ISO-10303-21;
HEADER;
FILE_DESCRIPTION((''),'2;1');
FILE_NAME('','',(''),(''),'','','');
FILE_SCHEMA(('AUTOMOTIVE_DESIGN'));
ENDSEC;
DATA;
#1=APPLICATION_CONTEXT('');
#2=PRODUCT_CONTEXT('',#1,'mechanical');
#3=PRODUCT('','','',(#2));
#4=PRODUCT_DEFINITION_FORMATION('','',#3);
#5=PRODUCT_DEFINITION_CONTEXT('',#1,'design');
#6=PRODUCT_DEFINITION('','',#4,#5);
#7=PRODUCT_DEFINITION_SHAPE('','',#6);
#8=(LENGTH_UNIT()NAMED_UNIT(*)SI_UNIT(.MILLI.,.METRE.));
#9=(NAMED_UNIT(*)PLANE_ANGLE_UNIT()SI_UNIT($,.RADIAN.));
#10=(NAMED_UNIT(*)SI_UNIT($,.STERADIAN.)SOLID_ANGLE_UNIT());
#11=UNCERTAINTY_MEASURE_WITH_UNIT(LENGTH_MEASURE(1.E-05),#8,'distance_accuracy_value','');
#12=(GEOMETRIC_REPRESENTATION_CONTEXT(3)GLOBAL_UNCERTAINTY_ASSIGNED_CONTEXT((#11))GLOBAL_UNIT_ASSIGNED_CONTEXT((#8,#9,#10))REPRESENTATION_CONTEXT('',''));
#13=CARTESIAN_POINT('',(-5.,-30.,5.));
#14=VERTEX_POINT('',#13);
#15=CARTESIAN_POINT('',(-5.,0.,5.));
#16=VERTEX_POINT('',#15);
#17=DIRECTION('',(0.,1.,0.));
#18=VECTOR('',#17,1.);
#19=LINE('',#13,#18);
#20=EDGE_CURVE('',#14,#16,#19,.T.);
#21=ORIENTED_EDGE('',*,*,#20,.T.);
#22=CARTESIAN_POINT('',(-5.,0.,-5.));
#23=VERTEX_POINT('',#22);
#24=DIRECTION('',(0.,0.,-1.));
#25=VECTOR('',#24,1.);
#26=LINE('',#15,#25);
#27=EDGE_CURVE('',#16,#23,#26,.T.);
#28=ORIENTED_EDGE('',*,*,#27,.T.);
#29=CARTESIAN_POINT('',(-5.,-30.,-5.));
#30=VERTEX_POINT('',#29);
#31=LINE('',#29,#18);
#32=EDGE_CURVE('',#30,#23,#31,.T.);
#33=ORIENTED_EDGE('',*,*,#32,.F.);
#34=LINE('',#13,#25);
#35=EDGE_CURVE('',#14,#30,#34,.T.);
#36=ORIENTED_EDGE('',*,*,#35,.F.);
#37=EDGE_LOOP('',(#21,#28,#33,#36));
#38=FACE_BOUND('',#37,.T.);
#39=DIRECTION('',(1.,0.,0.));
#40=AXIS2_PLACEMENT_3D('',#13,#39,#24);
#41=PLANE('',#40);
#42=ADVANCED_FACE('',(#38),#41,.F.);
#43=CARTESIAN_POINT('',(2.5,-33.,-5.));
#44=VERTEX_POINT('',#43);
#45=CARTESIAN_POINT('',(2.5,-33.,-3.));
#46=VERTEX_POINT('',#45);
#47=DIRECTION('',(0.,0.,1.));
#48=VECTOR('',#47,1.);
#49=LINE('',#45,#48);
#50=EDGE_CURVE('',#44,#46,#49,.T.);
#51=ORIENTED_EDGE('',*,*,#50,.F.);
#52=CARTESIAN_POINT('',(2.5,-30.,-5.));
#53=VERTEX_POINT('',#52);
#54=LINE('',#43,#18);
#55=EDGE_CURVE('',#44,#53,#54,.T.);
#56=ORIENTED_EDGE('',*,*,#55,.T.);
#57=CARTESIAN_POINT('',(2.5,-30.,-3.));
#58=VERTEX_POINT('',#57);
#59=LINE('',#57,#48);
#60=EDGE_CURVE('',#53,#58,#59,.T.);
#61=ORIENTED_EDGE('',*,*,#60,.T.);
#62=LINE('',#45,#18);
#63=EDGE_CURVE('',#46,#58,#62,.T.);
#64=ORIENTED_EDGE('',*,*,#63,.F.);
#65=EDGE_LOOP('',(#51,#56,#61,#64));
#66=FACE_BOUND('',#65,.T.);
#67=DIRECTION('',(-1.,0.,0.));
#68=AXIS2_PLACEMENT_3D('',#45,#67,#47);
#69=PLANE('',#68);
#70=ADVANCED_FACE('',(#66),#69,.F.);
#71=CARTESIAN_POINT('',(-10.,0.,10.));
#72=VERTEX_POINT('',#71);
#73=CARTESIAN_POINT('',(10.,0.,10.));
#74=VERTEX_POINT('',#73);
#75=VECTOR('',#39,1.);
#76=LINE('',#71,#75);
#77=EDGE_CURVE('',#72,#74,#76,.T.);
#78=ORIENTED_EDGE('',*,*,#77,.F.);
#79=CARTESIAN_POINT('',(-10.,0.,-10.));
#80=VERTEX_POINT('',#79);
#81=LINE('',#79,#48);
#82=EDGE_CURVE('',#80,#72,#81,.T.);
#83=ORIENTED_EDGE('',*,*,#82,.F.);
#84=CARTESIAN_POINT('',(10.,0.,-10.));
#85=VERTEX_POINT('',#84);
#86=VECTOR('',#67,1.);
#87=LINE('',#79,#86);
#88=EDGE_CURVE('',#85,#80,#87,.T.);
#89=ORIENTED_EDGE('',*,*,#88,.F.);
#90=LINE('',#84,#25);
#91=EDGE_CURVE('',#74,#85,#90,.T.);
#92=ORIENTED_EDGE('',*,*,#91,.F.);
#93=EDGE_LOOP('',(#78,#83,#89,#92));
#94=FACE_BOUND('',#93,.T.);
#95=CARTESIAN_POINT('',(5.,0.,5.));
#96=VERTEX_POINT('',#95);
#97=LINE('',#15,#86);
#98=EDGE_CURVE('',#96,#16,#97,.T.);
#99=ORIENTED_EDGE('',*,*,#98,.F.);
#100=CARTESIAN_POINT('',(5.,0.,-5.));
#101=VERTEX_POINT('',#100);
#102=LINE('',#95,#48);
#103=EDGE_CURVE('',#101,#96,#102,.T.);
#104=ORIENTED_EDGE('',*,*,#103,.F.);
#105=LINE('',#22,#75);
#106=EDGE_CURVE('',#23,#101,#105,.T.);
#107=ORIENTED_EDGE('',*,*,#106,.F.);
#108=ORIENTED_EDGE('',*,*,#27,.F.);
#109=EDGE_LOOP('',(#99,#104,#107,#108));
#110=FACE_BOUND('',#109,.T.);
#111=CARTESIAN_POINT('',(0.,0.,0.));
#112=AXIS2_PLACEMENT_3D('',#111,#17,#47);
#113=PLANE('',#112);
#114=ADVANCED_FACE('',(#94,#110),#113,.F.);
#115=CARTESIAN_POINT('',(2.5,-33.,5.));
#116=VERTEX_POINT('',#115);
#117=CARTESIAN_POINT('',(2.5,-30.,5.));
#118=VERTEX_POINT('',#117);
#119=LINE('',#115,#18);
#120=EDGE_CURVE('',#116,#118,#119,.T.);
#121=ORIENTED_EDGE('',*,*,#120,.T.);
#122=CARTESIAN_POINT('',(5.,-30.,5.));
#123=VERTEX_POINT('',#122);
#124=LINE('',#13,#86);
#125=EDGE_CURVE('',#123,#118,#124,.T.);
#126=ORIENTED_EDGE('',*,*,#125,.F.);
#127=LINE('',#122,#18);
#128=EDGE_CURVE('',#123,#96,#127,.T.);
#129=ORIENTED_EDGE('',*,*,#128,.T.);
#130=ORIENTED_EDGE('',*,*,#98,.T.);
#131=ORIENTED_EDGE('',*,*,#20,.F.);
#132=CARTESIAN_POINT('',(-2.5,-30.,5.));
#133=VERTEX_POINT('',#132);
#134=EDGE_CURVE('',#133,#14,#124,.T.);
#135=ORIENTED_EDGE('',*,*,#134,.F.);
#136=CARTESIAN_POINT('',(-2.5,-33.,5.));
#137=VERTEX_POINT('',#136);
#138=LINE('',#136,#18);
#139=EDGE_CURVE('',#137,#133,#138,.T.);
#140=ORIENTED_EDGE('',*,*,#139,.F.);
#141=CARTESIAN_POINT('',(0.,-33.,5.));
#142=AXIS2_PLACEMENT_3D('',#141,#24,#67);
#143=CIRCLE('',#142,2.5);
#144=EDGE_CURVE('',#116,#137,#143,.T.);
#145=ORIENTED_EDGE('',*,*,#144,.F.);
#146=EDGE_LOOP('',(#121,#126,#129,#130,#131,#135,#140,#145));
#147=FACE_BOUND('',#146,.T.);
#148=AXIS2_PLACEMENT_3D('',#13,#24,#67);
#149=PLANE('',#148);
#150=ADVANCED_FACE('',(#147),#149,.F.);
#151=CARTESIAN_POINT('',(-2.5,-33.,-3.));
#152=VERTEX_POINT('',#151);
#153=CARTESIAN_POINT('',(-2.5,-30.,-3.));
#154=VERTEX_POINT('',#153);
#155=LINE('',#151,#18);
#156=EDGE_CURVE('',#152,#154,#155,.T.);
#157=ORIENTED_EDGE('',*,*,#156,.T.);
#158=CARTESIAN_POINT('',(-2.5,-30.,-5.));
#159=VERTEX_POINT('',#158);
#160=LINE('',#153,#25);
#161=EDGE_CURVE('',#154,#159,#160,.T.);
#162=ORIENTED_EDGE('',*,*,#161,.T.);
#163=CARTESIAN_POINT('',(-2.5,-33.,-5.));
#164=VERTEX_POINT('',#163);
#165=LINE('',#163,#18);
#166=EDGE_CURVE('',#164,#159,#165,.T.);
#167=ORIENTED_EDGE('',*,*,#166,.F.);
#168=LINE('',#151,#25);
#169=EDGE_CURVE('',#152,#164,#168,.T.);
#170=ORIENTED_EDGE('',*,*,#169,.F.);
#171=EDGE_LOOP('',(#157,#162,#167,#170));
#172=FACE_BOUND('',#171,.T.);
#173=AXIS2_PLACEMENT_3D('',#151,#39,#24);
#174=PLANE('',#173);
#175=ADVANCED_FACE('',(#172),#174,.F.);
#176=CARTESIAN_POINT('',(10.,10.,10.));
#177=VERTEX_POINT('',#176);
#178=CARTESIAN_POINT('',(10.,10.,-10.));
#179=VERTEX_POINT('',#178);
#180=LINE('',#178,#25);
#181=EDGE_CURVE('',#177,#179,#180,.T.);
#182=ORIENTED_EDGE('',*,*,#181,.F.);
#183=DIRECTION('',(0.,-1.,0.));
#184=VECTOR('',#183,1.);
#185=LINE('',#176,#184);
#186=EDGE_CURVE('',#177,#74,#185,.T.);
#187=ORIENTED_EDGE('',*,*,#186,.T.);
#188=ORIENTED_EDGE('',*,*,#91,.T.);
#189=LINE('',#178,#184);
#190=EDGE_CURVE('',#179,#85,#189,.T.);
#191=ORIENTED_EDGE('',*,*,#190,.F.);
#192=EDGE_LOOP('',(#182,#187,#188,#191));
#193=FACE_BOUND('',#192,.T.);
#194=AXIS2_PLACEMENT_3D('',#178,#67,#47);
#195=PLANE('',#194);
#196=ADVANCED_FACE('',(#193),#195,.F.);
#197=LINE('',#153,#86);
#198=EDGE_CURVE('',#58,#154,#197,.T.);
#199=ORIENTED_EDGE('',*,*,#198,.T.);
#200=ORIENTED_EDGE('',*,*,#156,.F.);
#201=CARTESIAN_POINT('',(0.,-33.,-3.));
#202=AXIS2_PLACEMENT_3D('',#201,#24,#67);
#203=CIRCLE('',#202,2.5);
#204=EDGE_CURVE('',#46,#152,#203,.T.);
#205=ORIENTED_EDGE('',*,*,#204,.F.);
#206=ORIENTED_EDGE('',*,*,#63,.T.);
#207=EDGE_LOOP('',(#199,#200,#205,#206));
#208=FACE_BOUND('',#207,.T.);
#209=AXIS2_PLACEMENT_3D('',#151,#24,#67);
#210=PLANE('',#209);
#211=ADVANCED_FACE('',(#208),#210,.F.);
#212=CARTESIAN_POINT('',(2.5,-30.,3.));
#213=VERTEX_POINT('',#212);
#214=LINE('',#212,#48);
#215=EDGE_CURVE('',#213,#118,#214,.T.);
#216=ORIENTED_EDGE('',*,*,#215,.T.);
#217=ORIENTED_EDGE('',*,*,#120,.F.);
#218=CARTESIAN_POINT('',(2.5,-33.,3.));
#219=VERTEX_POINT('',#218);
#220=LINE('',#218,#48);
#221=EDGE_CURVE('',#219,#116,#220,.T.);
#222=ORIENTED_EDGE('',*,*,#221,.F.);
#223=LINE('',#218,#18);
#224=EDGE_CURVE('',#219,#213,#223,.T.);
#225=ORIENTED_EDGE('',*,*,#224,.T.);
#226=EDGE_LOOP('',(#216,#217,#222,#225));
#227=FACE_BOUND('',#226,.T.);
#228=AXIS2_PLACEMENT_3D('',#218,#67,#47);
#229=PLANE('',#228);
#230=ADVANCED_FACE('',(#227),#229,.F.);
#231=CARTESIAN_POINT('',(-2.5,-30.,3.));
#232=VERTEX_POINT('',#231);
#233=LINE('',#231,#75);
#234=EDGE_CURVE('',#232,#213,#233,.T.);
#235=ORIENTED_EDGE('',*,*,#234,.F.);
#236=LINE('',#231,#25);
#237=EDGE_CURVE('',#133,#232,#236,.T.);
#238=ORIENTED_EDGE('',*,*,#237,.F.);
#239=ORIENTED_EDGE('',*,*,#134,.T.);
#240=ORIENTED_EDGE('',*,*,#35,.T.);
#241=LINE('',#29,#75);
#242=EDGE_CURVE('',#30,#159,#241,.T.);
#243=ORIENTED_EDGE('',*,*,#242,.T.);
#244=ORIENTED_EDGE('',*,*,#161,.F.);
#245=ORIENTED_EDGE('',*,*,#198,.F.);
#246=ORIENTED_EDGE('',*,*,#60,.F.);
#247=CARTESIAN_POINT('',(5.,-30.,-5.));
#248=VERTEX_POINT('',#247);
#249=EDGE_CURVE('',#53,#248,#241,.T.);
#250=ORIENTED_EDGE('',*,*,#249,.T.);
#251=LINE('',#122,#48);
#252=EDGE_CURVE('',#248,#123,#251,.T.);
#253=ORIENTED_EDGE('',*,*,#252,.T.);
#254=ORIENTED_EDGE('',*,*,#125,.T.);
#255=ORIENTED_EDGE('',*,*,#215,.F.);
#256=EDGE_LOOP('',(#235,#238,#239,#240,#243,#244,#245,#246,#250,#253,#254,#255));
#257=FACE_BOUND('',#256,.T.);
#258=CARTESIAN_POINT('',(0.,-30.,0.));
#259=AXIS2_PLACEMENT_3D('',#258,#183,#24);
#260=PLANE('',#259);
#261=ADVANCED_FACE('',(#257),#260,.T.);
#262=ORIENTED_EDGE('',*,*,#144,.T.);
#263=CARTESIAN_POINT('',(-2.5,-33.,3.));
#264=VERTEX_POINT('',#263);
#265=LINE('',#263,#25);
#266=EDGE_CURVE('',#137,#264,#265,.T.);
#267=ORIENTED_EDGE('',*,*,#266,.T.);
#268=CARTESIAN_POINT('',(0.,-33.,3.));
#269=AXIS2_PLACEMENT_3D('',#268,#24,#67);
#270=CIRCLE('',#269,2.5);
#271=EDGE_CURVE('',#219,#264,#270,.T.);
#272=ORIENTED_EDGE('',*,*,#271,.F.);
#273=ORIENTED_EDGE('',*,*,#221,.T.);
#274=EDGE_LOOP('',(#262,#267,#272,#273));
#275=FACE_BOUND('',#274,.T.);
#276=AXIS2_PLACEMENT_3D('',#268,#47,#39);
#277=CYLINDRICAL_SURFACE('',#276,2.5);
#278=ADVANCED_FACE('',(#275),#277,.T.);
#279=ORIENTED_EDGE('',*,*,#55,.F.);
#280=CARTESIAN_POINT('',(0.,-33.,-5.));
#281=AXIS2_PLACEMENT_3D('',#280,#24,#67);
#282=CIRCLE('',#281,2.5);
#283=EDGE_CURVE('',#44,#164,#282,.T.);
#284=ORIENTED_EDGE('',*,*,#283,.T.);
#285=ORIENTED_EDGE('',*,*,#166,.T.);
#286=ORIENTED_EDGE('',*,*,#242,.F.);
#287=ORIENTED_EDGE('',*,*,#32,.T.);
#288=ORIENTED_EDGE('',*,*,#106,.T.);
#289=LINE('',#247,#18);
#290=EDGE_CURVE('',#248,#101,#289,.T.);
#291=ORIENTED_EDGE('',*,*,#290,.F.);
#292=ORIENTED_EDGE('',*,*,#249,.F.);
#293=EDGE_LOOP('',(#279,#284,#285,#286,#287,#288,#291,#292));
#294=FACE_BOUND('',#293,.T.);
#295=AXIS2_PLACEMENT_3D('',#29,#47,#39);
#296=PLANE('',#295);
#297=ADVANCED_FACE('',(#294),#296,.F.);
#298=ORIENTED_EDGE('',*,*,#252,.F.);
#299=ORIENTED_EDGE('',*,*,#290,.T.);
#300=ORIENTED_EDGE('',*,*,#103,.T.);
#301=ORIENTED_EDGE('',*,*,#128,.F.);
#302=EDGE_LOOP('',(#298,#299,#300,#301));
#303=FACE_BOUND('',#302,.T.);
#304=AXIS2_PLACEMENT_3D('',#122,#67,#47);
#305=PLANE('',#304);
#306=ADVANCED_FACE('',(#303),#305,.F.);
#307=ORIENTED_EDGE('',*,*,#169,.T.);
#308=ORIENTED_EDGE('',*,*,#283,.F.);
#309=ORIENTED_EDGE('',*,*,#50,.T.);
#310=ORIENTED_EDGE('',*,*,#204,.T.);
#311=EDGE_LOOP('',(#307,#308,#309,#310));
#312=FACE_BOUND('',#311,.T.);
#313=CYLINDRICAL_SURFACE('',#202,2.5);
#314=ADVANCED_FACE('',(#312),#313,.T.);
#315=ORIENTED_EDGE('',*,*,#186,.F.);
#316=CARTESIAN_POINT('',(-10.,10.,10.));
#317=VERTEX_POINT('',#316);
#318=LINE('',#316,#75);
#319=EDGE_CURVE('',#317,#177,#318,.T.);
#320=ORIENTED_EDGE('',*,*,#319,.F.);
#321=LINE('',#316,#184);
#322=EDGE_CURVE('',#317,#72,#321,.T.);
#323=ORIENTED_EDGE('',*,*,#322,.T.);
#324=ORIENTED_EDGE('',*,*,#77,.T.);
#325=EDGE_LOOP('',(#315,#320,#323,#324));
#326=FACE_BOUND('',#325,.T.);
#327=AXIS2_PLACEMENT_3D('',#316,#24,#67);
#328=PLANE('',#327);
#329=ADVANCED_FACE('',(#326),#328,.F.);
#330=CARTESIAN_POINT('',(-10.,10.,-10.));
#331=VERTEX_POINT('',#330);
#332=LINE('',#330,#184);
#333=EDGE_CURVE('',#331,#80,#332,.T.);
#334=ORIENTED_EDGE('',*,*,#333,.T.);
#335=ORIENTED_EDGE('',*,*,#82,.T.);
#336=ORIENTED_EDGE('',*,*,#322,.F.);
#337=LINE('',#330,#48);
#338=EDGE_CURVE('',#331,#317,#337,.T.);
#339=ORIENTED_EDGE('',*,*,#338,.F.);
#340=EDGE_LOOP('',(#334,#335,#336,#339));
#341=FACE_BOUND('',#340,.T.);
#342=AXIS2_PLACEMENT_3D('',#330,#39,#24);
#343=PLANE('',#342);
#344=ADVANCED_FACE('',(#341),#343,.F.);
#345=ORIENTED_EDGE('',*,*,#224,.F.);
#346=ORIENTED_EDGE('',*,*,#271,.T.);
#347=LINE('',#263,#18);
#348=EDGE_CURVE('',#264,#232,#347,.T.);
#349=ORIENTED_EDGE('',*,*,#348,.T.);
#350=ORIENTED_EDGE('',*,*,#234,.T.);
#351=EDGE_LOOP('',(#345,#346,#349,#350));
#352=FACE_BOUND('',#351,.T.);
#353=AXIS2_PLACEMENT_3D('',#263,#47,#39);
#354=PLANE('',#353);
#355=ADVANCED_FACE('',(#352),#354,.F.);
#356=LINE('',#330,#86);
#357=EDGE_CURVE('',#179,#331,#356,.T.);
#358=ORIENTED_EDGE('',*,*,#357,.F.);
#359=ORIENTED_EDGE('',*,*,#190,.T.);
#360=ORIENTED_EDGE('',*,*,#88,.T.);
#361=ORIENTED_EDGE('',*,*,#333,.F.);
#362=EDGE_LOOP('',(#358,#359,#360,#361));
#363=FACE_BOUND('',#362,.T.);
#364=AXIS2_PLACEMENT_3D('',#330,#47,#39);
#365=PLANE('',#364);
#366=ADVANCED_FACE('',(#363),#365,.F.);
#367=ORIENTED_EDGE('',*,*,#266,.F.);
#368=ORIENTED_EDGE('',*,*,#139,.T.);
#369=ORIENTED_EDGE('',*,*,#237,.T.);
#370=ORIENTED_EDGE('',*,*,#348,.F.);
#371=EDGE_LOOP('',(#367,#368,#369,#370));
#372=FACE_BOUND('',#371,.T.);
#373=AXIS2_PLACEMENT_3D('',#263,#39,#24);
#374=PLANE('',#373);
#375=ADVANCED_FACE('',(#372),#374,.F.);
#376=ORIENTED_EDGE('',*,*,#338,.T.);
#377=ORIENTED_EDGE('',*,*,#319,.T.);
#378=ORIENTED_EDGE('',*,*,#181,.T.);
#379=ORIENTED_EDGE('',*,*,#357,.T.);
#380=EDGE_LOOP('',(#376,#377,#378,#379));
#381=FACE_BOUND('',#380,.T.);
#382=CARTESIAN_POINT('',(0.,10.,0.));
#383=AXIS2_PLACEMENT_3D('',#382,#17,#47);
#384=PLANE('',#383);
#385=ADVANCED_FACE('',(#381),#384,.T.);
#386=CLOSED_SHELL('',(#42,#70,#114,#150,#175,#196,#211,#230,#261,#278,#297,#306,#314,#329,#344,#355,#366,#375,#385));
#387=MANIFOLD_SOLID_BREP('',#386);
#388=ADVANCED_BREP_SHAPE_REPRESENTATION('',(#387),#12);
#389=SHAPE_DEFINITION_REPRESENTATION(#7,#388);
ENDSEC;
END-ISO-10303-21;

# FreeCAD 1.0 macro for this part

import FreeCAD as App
import Part
import Sketcher

V = App.Vector


def add_polygon(sketch, points):
    """Adds a closed chain of lines whose ends are joined by coincident constraints."""
    first, n = sketch.GeometryCount, len(points)
    for a, b in zip(points, points[1:] + points[:1]):
        sketch.addGeometry(Part.LineSegment(App.Vector(*a, 0), App.Vector(*b, 0)), False)
    for i in range(n):
        sketch.addConstraint(Sketcher.Constraint("Coincident", first + i, 2, first + (i + 1) % n, 1))

doc = App.newDocument("Part")
body = doc.addObject("PartDesign::Body", "Body")

# Sketch on XZ plane
sketch1 = body.newObject("Sketcher::SketchObject", "Sketch")
sketch1.AttachmentSupport = (doc.getObject("XZ_Plane"), [""])
sketch1.MapMode = "FlatFace"
add_polygon(sketch1, [(-10, -10), (-10, 10), (10, 10), (10, -10)])  # lines 0-3
sketch1.addConstraint([
    Sketcher.Constraint("Vertical", 0),
    Sketcher.Constraint("Horizontal", 1),
    Sketcher.Constraint("Vertical", 2),
    Sketcher.Constraint("Horizontal", 3),
    Sketcher.Constraint("Symmetric", 0, 2, 2, 2, -1, 1),
    Sketcher.Constraint("Equal", 3, 0),
    Sketcher.Constraint("DistanceX", 1, 1, 1, 2, 20.0),
])
pad1 = body.newObject("PartDesign::Pad", "Pad")
pad1.Profile = sketch1
pad1.Length = 10
pad1.Reversed = True

# Sketch on XZ plane
sketch2 = body.newObject("Sketcher::SketchObject", "Sketch001")
sketch2.AttachmentSupport = (doc.getObject("XZ_Plane"), [""])
sketch2.MapMode = "FlatFace"
add_polygon(sketch2, [(5, -5), (5, 5), (-5, 5), (-5, -5)])  # lines 0-3
sketch2.addConstraint([
    Sketcher.Constraint("Vertical", 0),
    Sketcher.Constraint("Horizontal", 1),
    Sketcher.Constraint("Vertical", 2),
    Sketcher.Constraint("Horizontal", 3),
    Sketcher.Constraint("Symmetric", 0, 2, 2, 2, -1, 1),
    Sketcher.Constraint("Equal", 3, 0),
    Sketcher.Constraint("DistanceX", 1, 2, 1, 1, 10.0),
])
pad2 = body.newObject("PartDesign::Pad", "Pad001")
pad2.Profile = sketch2
pad2.Length = 30

# Sketch on XZ plane
sketch3 = body.newObject("Sketcher::SketchObject", "Sketch002")
sketch3.AttachmentSupport = (doc.getObject("XZ_Plane"), [""])
sketch3.MapMode = "FlatFace"
sketch3.AttachmentOffset = App.Placement(V(0, 0, 30), App.Rotation())
add_polygon(sketch3, [(2.5, -5), (2.5, -3), (-2.5, -3), (-2.5, -5)])  # lines 0-3
add_polygon(sketch3, [(2.5, 3), (2.5, 5), (-2.5, 5), (-2.5, 3)])  # lines 4-7
sketch3.addConstraint([
    Sketcher.Constraint("Vertical", 0),
    Sketcher.Constraint("Horizontal", 1),
    Sketcher.Constraint("Vertical", 2),
    Sketcher.Constraint("Horizontal", 3),
    Sketcher.Constraint("Vertical", 4),
    Sketcher.Constraint("Horizontal", 5),
    Sketcher.Constraint("Vertical", 6),
    Sketcher.Constraint("Horizontal", 7),
    Sketcher.Constraint("Symmetric", 2, 2, 4, 2, -1, 1),
    Sketcher.Constraint("Symmetric", 0, 2, 6, 2, -1, 1),
    Sketcher.Constraint("Vertical", 3, 2, 4, 2),
    Sketcher.Constraint("DistanceX", 1, 2, 1, 1, 5.0),
    Sketcher.Constraint("DistanceY", 0, 1, 0, 2, 2.0),
    Sketcher.Constraint("DistanceY", 0, 2, -1, 1, 3.0),
])
pad3 = body.newObject("PartDesign::Pad", "Pad002")
pad3.Profile = sketch3
pad3.Length = 3

# Sketch on XY plane
sketch4 = body.newObject("Sketcher::SketchObject", "Sketch003")
sketch4.AttachmentSupport = (doc.getObject("XY_Plane"), [""])
sketch4.MapMode = "FlatFace"
sketch4.AttachmentOffset = App.Placement(V(0, 0, -5), App.Rotation())
sketch4.addGeometry(Part.Circle(V(0, -33, 0), V(0, 0, 1), 2.5), False)
sketch4.addConstraint([
    Sketcher.Constraint("PointOnObject", 0, 3, -2),
    Sketcher.Constraint("Diameter", 0, 5.0),
    Sketcher.Constraint("DistanceY", 0, 3, -1, 1, 33.0),
])
pad4 = body.newObject("PartDesign::Pad", "Pad003")
pad4.Profile = sketch4
pad4.Length = 2
doc.recompute()

mirrored = body.newObject("PartDesign::Mirrored", "Mirrored")
mirrored.Originals = [pad4]
mirrored.MirrorPlane = (doc.getObject("XY_Plane"), [""])
body.Tip = mirrored

doc.recompute()
